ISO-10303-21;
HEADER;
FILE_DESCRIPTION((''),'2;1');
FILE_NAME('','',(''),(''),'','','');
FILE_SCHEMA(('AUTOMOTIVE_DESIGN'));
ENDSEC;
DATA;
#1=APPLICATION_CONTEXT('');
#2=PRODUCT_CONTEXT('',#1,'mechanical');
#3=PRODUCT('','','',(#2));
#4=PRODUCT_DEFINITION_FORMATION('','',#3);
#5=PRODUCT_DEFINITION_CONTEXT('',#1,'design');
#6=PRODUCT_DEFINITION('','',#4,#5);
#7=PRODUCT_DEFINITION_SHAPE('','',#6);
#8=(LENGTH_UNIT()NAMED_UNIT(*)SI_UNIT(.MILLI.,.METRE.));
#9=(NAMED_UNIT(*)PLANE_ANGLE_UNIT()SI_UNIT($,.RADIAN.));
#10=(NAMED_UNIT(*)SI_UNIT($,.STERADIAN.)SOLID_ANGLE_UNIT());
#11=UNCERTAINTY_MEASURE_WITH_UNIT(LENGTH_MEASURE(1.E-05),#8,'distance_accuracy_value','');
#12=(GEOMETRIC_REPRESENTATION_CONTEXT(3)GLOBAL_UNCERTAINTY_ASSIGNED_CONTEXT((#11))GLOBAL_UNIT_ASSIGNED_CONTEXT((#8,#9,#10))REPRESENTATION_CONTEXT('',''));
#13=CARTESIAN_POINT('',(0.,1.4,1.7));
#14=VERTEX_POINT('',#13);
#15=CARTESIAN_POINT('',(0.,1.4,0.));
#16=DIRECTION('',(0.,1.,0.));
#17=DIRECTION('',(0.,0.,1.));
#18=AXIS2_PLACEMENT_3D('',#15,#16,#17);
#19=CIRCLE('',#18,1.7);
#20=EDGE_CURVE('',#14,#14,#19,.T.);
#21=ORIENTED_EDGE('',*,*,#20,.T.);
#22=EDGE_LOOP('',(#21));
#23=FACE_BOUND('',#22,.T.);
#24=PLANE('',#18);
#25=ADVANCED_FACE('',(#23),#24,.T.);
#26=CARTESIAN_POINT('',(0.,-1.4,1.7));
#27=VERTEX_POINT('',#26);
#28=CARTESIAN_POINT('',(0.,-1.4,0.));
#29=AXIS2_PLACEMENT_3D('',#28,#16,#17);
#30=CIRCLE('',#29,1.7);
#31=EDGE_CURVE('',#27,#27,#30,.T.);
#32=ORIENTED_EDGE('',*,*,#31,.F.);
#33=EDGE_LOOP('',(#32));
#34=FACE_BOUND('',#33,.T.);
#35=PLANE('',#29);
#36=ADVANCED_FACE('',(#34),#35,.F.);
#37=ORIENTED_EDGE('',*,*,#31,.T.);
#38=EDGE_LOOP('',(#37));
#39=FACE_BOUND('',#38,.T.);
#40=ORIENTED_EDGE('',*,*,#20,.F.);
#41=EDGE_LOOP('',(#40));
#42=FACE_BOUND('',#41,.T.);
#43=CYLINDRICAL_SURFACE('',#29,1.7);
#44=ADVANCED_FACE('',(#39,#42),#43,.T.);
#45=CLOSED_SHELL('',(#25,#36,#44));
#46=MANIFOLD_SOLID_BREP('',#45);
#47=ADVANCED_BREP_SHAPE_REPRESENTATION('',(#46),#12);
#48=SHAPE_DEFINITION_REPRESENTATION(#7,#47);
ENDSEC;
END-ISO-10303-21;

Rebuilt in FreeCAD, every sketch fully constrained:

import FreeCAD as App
import Part
import Sketcher
Q = App.Units.Quantity

doc = App.newDocument("Part")
body = doc.addObject("PartDesign::Body", "Body")

sketch1 = body.newObject("Sketcher::SketchObject", "Sketch")
sketch1.AttachmentSupport = (doc.getObject("XZ_Plane"), [""])
sketch1.MapMode = "FlatFace"
sketch1.addGeometry(Part.Circle(App.Vector(0, 0, 0), App.Vector(0, 0, 1), 1.7), False)
sketch1.addConstraint([
    Sketcher.Constraint("Coincident", 0, 3, -1, 1),
    Sketcher.Constraint("Diameter", 0, Q("3.4 mm")),
])
pad1 = body.newObject("PartDesign::Pad", "Pad")
pad1.Profile = sketch1
pad1.Type = "TwoLengths"
pad1.Length = 1.4
pad1.Length2 = 1.4
pad1.Reversed = True

doc.recompute()
